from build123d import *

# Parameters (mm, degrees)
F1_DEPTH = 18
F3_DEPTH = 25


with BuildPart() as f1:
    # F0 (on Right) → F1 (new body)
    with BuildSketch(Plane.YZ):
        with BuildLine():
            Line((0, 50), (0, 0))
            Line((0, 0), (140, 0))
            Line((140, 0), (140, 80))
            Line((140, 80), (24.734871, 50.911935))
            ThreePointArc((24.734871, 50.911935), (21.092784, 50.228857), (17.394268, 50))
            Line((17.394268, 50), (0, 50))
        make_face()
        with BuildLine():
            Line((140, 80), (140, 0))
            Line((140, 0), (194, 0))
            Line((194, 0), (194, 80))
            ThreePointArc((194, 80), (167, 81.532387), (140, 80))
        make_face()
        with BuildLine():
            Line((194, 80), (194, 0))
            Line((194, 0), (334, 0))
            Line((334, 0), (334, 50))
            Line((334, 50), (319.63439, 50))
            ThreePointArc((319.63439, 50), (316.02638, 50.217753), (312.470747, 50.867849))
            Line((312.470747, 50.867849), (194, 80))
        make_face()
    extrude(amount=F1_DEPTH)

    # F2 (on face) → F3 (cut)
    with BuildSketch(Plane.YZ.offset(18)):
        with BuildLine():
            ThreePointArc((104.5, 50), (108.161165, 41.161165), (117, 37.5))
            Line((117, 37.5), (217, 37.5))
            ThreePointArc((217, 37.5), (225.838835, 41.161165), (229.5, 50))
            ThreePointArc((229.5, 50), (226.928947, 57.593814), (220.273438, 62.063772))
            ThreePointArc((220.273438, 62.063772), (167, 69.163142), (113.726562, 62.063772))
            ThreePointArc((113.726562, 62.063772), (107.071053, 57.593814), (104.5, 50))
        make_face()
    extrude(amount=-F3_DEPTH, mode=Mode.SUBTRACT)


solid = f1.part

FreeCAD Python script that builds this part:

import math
import FreeCAD as App
import Part
import Sketcher

V = App.Vector

doc = App.newDocument("Part")
body = doc.addObject("PartDesign::Body", "Body")

sketch1 = body.newObject("Sketcher::SketchObject", "Sketch")
sketch1.AttachmentSupport = (doc.getObject("YZ_Plane"), [""])
sketch1.MapMode = "FlatFace"
sketch1.addGeometry([
    Part.LineSegment(V(0, 50, 0), V(0, 0, 0)),
    Part.LineSegment(V(0, 0, 0), V(334, 0, 0)),
    Part.LineSegment(V(334, 0, 0), V(334, 50, 0)),
    Part.LineSegment(V(334, 50, 0), V(320, 50, 0)),
    Part.ArcOfCircle(Part.Circle(V(320, 80, 0), V(0, 0, 1), 30), math.radians(-103.82), math.radians(-90)),
    Part.LineSegment(V(312, 51, 0), V(194, 80, 0)),
    Part.ArcOfCircle(Part.Circle(V(167, -157, 0), V(0, 0, 1), 239), math.radians(83.5), math.radians(96.5)),
    Part.LineSegment(V(140, 80, 0), V(25, 51, 0)),
    Part.ArcOfCircle(Part.Circle(V(17, 80, 0), V(0, 0, 1), 30), math.radians(-90), math.radians(-75.84)),
    Part.LineSegment(V(17, 50, 0), V(0, 50, 0)),
], False)
sketch1.addConstraint([
    Sketcher.Constraint("Coincident", 0, 2, 1, 1),
    Sketcher.Constraint("Coincident", 1, 2, 2, 1),
    Sketcher.Constraint("Coincident", 2, 2, 3, 1),
    Sketcher.Constraint("Tangent", 3, 2, 4, 2),
    Sketcher.Constraint("Tangent", 4, 1, 5, 1),
    Sketcher.Constraint("Coincident", 5, 2, 6, 1),
    Sketcher.Constraint("Coincident", 6, 2, 7, 1),
    Sketcher.Constraint("Tangent", 7, 2, 8, 2),
    Sketcher.Constraint("Tangent", 8, 1, 9, 1),
    Sketcher.Constraint("Coincident", 9, 2, 0, 1),
    Sketcher.Constraint("Vertical", 0),
    Sketcher.Constraint("Horizontal", 1),
    Sketcher.Constraint("Vertical", 2),
    Sketcher.Constraint("Horizontal", 3),
    Sketcher.Constraint("Horizontal", 9),
    Sketcher.Constraint("Coincident", 0, 2, -1, 1),
    Sketcher.Constraint("Horizontal", 5, 2, 6, 2),
    Sketcher.Constraint("Horizontal", 3, 2, 8, 1),
    Sketcher.Constraint("DistanceX", 1, 1, 1, 2, 334.0),
    Sketcher.Constraint("DistanceY", 0, 2, 0, 1, 50.0),
    Sketcher.Constraint("Distance", 5, 122.0),
    Sketcher.Constraint("DistanceX", -1, 1, 6, 3, 167.0),
    Sketcher.Constraint("DistanceX", -1, 1, 5, 2, 194.0),
    Sketcher.Constraint("DistanceY", -1, 1, 5, 2, 80.0),
    Sketcher.Constraint("Radius", 6, 238.630388),
    Sketcher.Constraint("Radius", 4, 30.000066),
    Sketcher.Constraint("Radius", 8, 30.000028),
    Sketcher.Constraint("DistanceX", 9, 2, 9, 1, 17.394268),
])
pad1 = body.newObject("PartDesign::Pad", "Pad")
pad1.Profile = sketch1
pad1.Length = 18

sketch2 = body.newObject("Sketcher::SketchObject", "Sketch001")
sketch2.AttachmentSupport = (doc.getObject("YZ_Plane"), [""])
sketch2.MapMode = "FlatFace"
sketch2.AttachmentOffset = App.Placement(V(0, 0, 18), App.Rotation())
sketch2.addGeometry([
    Part.ArcOfCircle(Part.Circle(V(117, 50, 0), V(0, 0, 1), 12), math.radians(180), math.radians(270)),
    Part.LineSegment(V(117, 38, 0), V(217, 38, 0)),
    Part.ArcOfCircle(Part.Circle(V(217, 50, 0), V(0, 0, 1), 12), math.radians(-90), math.radians(0)),
    Part.ArcOfCircle(Part.Circle(V(217, 50, 0), V(0, 0, 1), 12), math.radians(0), math.radians(75)),
    Part.ArcOfCircle(Part.Circle(V(167, -134, 0), V(0, 0, 1), 203), math.radians(75), math.radians(105)),
    Part.ArcOfCircle(Part.Circle(V(117, 50, 0), V(0, 0, 1), 12), math.radians(105), math.radians(180)),
], False)
sketch2.addConstraint([
    Sketcher.Constraint("Tangent", 0, 2, 1, 1),
    Sketcher.Constraint("Tangent", 1, 2, 2, 1),
    Sketcher.Constraint("Tangent", 2, 2, 3, 1),
    Sketcher.Constraint("Tangent", 3, 2, 4, 1),
    Sketcher.Constraint("Tangent", 4, 2, 5, 1),
    Sketcher.Constraint("Tangent", 5, 2, 0, 1),
    Sketcher.Constraint("Horizontal", 1),
    Sketcher.Constraint("Equal", 0, 2),
    Sketcher.Constraint("Equal", 2, 3),
    Sketcher.Constraint("Equal", 3, 5),
    Sketcher.Constraint("Horizontal", 5, 3, 2, 2),
    Sketcher.Constraint("Horizontal", 2, 2, 5, 2),
    Sketcher.Constraint("Radius", 0, 12.499999),
    Sketcher.Constraint("DistanceX", 1, 1, 1, 2, 100.0),
    Sketcher.Constraint("DistanceX", -1, 1, 0, 3, 116.999999),
    Sketcher.Constraint("DistanceY", -1, 1, 0, 3, 49.999999),
    Sketcher.Constraint("Radius", 4, 203.430745),
])
pocket1 = body.newObject("PartDesign::Pocket", "Pocket")
pocket1.Profile = sketch2
pocket1.Length = 25

doc.recompute()
